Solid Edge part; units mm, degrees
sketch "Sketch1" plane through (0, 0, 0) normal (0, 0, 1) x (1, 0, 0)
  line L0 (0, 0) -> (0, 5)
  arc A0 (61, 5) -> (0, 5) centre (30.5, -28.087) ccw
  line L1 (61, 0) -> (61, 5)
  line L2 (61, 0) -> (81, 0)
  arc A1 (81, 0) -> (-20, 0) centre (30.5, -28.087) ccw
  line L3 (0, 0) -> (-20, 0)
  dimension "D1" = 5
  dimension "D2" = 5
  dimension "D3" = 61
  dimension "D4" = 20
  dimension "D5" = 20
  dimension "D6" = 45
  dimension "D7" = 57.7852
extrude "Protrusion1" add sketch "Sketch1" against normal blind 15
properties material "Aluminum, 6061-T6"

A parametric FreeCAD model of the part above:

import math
import FreeCAD as App
import Part
import Sketcher
Q = App.Units.Quantity

doc = App.newDocument("Part")
params = doc.addObject("Spreadsheet::Sheet", "Params")
for row, (alias, value) in enumerate([
    ("sketch1_radius", "45 mm"),
    ("sketch1_width", "20 mm"),
    ("sketch1_height", "5 mm"),
    ("pad1_length", "15 mm"),
], start=1):
    params.set(f"A{row}", alias)
    params.set(f"B{row}", "=" + value)
    params.setAlias(f"B{row}", alias)

body = doc.addObject("PartDesign::Body", "Body")

sketch1 = body.newObject("Sketcher::SketchObject", "Sketch")
sketch1.AttachmentSupport = (doc.getObject("XY_Plane"), [""])
sketch1.MapMode = "FlatFace"
sketch1.addGeometry(Part.LineSegment(App.Vector(-20, 0, 0), App.Vector(0, 0, 0)), False)
sketch1.addGeometry(Part.LineSegment(App.Vector(0, 0, 0), App.Vector(0, 5, 0)), False)
sketch1.addGeometry(Part.ArcOfCircle(Part.Circle(App.Vector(30, -28, 0), App.Vector(0, 0, 1), 45), math.radians(47), math.radians(133)), False)
sketch1.addGeometry(Part.LineSegment(App.Vector(61, 5, 0), App.Vector(61, 0, 0)), False)
sketch1.addGeometry(Part.LineSegment(App.Vector(61, 0, 0), App.Vector(81, 0, 0)), False)
sketch1.addGeometry(Part.ArcOfCircle(Part.Circle(App.Vector(30, -28, 0), App.Vector(0, 0, 1), 58), math.radians(29), math.radians(151)), False)
sketch1.addConstraint(Sketcher.Constraint("Coincident", 0, 2, 1, 1))
sketch1.addConstraint(Sketcher.Constraint("Coincident", 1, 2, 2, 2))
sketch1.addConstraint(Sketcher.Constraint("Coincident", 2, 1, 3, 1))
sketch1.addConstraint(Sketcher.Constraint("Coincident", 3, 2, 4, 1))
sketch1.addConstraint(Sketcher.Constraint("Coincident", 4, 2, 5, 1))
sketch1.addConstraint(Sketcher.Constraint("Coincident", 5, 2, 0, 1))
sketch1.addConstraint(Sketcher.Constraint("Horizontal", 0))
sketch1.addConstraint(Sketcher.Constraint("Vertical", 1))
sketch1.addConstraint(Sketcher.Constraint("Vertical", 3))
sketch1.addConstraint(Sketcher.Constraint("Horizontal", 4))
sketch1.addConstraint(Sketcher.Constraint("Coincident", 0, 2, -1, 1))
sketch1.addConstraint(Sketcher.Constraint("Coincident", 5, 3, 2, 3))
sketch1.addConstraint(Sketcher.Constraint("PointOnObject", 3, 2, -1))
sketch1.addConstraint(Sketcher.Constraint("Horizontal", 1, 2, 2, 1))
sketch1.addConstraint(Sketcher.Constraint("DistanceX", -1, 1, 2, 1, Q("61 mm")))
sketch1.addConstraint(Sketcher.Constraint("Radius", 2, Q("45 mm")))
sketch1.addConstraint(Sketcher.Constraint("DistanceX", 0, 1, 0, 2, Q("20 mm")))
sketch1.addConstraint(Sketcher.Constraint("DistanceY", 1, 1, 1, 2, Q("5 mm")))
sketch1.setExpression("Constraints[15]", "Params.sketch1_radius")
sketch1.setExpression("Constraints[16]", "Params.sketch1_width")
sketch1.setExpression("Constraints[17]", "Params.sketch1_height")
pad1 = body.newObject("PartDesign::Pad", "Pad")
pad1.Profile = sketch1
pad1.setExpression("Length", "Params.pad1_length")
pad1.Reversed = True

doc.recompute()
